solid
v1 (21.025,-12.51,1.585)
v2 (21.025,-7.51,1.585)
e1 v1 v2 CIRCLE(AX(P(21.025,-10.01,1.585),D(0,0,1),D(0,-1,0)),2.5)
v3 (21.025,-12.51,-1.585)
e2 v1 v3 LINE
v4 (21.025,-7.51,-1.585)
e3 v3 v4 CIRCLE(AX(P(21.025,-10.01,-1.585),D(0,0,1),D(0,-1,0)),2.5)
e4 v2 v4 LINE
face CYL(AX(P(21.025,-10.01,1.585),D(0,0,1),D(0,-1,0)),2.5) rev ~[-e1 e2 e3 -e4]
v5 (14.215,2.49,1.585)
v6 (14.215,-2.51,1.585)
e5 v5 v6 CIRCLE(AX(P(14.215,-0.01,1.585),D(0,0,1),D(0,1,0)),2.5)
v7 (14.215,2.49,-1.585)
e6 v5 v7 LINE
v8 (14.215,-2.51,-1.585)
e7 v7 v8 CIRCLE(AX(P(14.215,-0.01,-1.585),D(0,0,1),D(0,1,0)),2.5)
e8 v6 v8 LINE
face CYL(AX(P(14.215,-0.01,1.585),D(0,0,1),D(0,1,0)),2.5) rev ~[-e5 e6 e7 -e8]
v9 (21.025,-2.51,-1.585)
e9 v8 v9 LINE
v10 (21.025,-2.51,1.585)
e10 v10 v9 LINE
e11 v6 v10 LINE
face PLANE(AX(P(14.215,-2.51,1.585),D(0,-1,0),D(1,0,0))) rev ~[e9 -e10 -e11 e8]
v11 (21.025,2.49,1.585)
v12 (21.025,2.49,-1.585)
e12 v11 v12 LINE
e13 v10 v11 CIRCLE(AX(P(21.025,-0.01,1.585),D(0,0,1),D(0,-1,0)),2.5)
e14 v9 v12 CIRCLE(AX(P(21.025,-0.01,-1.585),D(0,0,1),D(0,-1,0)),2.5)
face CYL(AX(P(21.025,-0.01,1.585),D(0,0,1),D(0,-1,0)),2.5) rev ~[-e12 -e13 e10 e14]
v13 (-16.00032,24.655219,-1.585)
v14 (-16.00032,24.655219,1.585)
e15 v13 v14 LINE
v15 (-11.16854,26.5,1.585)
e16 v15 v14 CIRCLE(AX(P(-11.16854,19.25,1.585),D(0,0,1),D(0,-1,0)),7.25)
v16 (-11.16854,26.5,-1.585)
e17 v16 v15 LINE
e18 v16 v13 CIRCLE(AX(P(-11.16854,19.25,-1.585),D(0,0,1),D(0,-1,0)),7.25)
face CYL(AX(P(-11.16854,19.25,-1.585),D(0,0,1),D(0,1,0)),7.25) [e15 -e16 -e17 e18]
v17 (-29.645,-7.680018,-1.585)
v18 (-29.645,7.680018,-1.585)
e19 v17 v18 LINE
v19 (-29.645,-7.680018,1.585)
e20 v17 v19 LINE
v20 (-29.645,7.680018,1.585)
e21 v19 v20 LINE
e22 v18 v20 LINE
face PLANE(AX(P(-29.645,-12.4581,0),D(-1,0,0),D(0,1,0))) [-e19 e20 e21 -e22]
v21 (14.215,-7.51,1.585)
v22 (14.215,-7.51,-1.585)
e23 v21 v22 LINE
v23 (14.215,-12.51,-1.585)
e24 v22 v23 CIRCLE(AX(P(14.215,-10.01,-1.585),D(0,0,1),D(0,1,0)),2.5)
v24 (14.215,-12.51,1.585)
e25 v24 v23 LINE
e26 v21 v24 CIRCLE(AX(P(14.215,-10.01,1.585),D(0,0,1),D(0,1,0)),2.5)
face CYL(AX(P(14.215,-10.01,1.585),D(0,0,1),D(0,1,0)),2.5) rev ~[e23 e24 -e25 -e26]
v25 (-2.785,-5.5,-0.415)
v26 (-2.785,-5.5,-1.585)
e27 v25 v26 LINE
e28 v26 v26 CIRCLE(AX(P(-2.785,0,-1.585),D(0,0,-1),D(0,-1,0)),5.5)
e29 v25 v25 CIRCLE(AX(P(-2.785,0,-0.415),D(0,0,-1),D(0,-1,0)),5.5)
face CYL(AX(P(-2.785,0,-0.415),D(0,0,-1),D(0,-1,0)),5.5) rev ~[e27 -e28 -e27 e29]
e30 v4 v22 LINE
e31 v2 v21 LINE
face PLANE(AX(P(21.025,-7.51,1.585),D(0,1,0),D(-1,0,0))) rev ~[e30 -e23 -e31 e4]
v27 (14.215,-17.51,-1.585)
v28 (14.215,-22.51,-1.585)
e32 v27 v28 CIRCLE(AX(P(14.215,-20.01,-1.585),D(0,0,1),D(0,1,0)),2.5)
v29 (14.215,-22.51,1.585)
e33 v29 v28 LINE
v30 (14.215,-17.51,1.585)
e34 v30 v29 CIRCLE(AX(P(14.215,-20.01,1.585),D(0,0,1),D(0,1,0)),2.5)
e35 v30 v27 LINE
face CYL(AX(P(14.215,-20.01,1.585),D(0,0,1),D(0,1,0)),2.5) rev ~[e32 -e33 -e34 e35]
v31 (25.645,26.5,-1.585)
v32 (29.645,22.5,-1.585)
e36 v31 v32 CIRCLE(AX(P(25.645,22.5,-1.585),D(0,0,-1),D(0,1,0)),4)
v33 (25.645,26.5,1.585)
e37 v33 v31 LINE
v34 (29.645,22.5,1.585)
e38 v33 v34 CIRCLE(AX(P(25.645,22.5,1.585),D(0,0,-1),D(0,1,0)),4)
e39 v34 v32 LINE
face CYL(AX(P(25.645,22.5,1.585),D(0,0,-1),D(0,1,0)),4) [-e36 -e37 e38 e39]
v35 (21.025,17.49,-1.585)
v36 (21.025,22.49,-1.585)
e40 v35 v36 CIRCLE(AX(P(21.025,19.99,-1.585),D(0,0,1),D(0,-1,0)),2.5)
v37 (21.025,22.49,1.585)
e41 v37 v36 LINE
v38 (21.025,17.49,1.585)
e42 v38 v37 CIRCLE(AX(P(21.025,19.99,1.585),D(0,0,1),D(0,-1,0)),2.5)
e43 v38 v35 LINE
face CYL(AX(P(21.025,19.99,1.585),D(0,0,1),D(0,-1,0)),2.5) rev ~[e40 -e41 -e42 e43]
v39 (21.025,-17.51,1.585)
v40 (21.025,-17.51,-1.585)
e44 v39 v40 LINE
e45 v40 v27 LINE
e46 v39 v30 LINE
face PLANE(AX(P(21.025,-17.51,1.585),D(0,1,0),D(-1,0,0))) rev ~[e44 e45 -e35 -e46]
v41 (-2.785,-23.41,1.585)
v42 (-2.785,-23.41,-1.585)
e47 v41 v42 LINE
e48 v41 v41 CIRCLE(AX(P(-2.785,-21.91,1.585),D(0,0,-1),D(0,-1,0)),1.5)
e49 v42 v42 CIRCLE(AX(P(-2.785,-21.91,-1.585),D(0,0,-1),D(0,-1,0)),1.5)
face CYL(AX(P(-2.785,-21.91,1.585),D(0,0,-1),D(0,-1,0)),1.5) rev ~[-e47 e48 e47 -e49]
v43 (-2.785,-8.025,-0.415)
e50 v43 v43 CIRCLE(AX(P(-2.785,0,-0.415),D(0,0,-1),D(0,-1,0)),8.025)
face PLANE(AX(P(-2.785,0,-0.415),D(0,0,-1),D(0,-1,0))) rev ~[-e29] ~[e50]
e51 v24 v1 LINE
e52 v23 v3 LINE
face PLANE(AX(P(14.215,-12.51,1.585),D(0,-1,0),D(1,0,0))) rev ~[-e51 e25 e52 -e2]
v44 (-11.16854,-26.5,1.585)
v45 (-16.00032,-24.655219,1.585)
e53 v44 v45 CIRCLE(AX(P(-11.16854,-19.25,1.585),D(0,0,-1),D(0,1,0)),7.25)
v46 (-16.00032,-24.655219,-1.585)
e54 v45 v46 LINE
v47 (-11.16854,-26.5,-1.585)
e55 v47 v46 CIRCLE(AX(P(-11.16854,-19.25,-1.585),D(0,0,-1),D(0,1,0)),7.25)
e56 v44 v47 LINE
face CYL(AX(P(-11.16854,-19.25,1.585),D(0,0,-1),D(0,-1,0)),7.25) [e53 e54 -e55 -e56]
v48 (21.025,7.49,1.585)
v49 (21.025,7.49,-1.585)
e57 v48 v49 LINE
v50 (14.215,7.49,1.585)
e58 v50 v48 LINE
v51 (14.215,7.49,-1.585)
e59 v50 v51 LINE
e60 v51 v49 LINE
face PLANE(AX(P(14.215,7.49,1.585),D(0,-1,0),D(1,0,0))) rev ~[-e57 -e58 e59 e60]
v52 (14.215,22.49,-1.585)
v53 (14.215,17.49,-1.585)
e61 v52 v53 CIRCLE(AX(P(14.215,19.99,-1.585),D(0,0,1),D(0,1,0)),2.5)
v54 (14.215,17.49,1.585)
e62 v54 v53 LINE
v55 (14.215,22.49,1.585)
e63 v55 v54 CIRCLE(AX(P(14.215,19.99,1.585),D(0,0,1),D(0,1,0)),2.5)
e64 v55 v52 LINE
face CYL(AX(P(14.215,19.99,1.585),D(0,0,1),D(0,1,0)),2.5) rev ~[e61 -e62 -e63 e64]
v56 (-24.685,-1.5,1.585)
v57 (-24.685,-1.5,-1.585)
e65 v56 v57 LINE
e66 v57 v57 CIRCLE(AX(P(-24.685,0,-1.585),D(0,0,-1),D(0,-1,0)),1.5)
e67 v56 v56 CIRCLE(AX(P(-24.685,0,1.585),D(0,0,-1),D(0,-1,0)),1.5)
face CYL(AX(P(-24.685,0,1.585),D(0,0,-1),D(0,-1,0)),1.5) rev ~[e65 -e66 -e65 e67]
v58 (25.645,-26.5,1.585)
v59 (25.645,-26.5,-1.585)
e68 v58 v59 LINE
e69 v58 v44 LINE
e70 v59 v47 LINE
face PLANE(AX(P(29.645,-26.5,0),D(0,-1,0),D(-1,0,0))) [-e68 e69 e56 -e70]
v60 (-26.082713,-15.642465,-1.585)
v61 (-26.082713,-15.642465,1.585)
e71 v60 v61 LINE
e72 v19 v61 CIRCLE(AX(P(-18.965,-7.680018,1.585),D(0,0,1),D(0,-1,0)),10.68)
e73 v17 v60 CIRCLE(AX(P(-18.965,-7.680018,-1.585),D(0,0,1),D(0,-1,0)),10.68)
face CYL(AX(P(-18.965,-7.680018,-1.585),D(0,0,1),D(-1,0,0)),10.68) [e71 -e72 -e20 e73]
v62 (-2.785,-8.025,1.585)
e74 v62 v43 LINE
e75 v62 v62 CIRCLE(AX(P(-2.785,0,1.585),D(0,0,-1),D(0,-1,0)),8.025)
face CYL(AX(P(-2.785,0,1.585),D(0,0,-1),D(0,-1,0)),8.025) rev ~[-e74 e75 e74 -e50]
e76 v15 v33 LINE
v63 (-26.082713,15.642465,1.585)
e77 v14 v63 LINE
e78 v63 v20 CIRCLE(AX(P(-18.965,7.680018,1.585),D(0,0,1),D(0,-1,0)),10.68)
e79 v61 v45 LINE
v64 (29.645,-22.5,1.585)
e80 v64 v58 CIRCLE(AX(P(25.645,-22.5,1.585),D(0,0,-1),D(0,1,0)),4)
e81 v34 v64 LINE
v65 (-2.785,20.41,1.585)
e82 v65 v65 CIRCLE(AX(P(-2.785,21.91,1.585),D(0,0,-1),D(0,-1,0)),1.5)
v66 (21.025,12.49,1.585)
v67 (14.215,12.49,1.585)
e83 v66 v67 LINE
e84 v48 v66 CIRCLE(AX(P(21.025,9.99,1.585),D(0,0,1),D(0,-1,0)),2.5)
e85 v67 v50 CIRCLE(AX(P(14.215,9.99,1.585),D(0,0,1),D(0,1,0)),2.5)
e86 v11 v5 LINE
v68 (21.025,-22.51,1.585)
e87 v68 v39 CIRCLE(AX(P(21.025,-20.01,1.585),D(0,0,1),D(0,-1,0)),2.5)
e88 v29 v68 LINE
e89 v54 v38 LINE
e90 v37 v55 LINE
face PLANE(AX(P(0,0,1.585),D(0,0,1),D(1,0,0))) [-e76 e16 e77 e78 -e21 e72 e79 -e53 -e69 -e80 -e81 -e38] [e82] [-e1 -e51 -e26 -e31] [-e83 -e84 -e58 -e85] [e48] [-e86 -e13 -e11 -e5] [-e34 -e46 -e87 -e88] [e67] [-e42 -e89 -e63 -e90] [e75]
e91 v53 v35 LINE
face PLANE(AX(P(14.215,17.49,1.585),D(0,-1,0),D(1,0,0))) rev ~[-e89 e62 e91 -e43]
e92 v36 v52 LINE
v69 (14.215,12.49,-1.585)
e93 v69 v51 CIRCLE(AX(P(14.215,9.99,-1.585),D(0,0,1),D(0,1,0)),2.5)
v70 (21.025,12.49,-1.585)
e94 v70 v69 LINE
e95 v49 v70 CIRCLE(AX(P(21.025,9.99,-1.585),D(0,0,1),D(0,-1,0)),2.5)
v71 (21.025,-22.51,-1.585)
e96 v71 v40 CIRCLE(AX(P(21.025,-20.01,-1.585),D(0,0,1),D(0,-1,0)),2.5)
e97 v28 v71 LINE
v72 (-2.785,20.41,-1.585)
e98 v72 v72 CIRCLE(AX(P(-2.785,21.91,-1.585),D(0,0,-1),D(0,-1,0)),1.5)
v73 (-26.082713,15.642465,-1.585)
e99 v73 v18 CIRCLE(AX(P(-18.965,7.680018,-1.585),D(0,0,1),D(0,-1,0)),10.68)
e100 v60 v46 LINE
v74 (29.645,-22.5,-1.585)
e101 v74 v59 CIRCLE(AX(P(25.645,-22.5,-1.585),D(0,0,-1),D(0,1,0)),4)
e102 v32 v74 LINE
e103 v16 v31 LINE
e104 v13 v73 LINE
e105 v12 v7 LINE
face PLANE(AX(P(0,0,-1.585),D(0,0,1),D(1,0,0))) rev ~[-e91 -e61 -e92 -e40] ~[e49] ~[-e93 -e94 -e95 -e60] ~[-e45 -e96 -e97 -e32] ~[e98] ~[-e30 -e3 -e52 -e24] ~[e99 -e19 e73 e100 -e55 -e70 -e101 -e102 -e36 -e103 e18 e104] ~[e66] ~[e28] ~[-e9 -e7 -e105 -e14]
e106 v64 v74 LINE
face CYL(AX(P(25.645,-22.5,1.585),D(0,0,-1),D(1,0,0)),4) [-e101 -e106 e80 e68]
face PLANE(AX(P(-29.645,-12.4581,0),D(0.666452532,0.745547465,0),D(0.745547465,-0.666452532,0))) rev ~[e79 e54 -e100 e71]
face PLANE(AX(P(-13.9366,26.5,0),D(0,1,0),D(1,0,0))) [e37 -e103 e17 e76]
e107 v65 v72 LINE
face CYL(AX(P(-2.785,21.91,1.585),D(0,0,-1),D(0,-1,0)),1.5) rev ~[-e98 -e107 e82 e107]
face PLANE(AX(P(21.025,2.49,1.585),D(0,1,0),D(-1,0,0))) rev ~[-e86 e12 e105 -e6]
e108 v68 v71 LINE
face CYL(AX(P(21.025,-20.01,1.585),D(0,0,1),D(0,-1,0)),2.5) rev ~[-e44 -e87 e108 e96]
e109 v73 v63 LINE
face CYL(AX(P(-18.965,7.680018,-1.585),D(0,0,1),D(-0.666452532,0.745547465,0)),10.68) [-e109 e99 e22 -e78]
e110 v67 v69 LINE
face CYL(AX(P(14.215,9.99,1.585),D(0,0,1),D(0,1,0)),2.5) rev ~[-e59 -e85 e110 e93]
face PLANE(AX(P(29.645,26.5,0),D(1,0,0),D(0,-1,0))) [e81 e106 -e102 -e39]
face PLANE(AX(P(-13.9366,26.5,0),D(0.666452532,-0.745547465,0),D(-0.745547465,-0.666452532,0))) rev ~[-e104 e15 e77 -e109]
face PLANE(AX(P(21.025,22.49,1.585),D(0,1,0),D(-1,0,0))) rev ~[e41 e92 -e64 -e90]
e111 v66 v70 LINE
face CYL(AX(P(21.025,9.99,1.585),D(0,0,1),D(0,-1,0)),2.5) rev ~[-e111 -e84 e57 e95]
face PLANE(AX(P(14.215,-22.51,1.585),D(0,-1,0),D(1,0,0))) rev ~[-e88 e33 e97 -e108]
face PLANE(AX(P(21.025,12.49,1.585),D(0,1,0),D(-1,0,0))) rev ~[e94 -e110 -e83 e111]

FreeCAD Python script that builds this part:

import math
import FreeCAD as App
import Part
import Sketcher


def edges_at(feature, points):
    """Names of the edges that pass closest to the given points."""
    edges = feature.Shape.Edges
    near = lambda p: min(range(len(edges)), key=lambda i: edges[i].distToShape(Part.Vertex(*p))[0])
    return sorted({f"Edge{near(p) + 1}" for p in points})

doc = App.newDocument("Part")
params = doc.addObject("Spreadsheet::Sheet", "Params")
for row, (alias, value) in enumerate([
    ("sketch1_height", "53 mm"),
    ("pad1_length", "3.17 mm"),
    ("sketch2_radius", "2.5 mm"),
    ("sketch2_width", "6.81 mm"),
    ("linearpattern_pitch", "10 mm"),
    ("sketch3_diameter", "11 mm"),
    ("hole_diameter", "11 mm"),
    ("hole_cbore_diameter", "16.05 mm"),
    ("hole_cbore_depth", "2 mm"),
    ("sketch4_diameter", "3 mm"),
    ("hole2_diameter", "3 mm"),
    ("fillet_radius", "7.25 mm"),
    ("fillet2_radius", "7.25 mm"),
    ("fillet3_radius", "10.68 mm"),
    ("fillet4_radius", "4 mm"),
], start=1):
    params.set(f"A{row}", alias)
    params.set(f"B{row}", "=" + value)
    params.setAlias(f"B{row}", alias)

body = doc.addObject("PartDesign::Body", "Body")

# Sketch on XY plane
sketch1 = doc.addObject("Sketcher::SketchObject", "Sketch")
body.addObject(sketch1)
sketch1.AttachmentSupport = (doc.XY_Plane, [""])
sketch1.MapMode = "FlatFace"
sketch1.addGeometry([
    Part.LineSegment(App.Vector(29.645, 26.5, 0), App.Vector(-13.9366, 26.5, 0)),  # 0
    Part.LineSegment(App.Vector(-13.9366, 26.5, 0), App.Vector(-29.645, 12.4581, 0)),  # 1
    Part.LineSegment(App.Vector(-29.645, 12.4581, 0), App.Vector(-29.645, -12.4581, 0)),  # 2
    Part.LineSegment(App.Vector(-29.645, -12.4581, 0), App.Vector(-13.9366, -26.5, 0)),  # 3
    Part.LineSegment(App.Vector(-13.9366, -26.5, 0), App.Vector(29.645, -26.5, 0)),  # 4
    Part.LineSegment(App.Vector(29.645, -26.5, 0), App.Vector(29.645, 26.5, 0)),  # 5
], False)
sketch1.addConstraint([
    Sketcher.Constraint("Coincident", 0, 2, 1, 1),
    Sketcher.Constraint("Coincident", 1, 2, 2, 1),
    Sketcher.Constraint("Coincident", 2, 2, 3, 1),
    Sketcher.Constraint("Coincident", 3, 2, 4, 1),
    Sketcher.Constraint("Coincident", 4, 2, 5, 1),
    Sketcher.Constraint("Coincident", 5, 2, 0, 1),
    Sketcher.Constraint("Horizontal", 0),
    Sketcher.Constraint("Vertical", 2),
    Sketcher.Constraint("Horizontal", 4),
    Sketcher.Constraint("Vertical", 5),
    Sketcher.Constraint("Symmetric", 0, 2, 3, 2, -1),
    Sketcher.Constraint("Equal", 1, 3),
    Sketcher.Constraint("DistanceY", 5, 1, 5, 2, 53.0),
    Sketcher.Constraint("DistanceX", 2, 2, 4, 2, 59.29),
    Sketcher.Constraint("DistanceX", 0, 2, 0, 1, 43.5816),
    Sketcher.Constraint("DistanceY", -1, 1, 1, 2, 12.458),
    Sketcher.Constraint("DistanceX", 1, 2, -1, 1, 29.645),
])
sketch1.setExpression("Constraints[12]", "Params.sketch1_height")
pad1 = doc.addObject("PartDesign::Pad", "Pad")
body.addObject(pad1)
pad1.Profile = sketch1
pad1.setExpression("Length", "Params.pad1_length")
pad1.Midplane = True

# Sketch on XY plane
sketch2 = doc.addObject("Sketcher::SketchObject", "Sketch001")
body.addObject(sketch2)
sketch2.AttachmentSupport = (doc.XY_Plane, [""])
sketch2.MapMode = "FlatFace"
sketch2.AttachmentOffset = App.Placement(App.Vector(0, 0, 1.585), App.Rotation())
sketch2.addGeometry([
    Part.LineSegment(App.Vector(14.215, -22.51, 0), App.Vector(21.025, -22.51, 0)),
    Part.ArcOfCircle(Part.Circle(App.Vector(21.025, -20.01, 0), App.Vector(0, 0, 1), 2.5), math.radians(-90), math.radians(90)),
    Part.LineSegment(App.Vector(21.025, -17.51, 0), App.Vector(14.215, -17.51, 0)),
    Part.ArcOfCircle(Part.Circle(App.Vector(14.215, -20.01, 0), App.Vector(0, 0, 1), 2.5), math.radians(90), math.radians(270)),
], False)
sketch2.addConstraint([
    Sketcher.Constraint("Tangent", 0, 2, 1, 1),
    Sketcher.Constraint("Tangent", 1, 2, 2, 1),
    Sketcher.Constraint("Tangent", 2, 2, 3, 1),
    Sketcher.Constraint("Tangent", 3, 2, 0, 1),
    Sketcher.Constraint("Horizontal", 0),
    Sketcher.Constraint("Horizontal", 2),
    Sketcher.Constraint("Radius", 1, 2.5),
    Sketcher.Constraint("DistanceX", 0, 1, 0, 2, 6.81),
    Sketcher.Constraint("DistanceY", 1, 3, -1, 1, 20.01),
    Sketcher.Constraint("DistanceX", -1, 1, 1, 3, 21.025),
])
sketch2.setExpression("Constraints[6]", "Params.sketch2_radius")
sketch2.setExpression("Constraints[7]", "Params.sketch2_width")
pocket1 = doc.addObject("PartDesign::Pocket", "Pocket")
body.addObject(pocket1)
pocket1.Profile = sketch2
pocket1.Type = "ThroughAll"
doc.recompute()

linearpattern = doc.addObject("PartDesign::LinearPattern", "LinearPattern")
body.addObject(linearpattern)
linearpattern.Originals = [pocket1]
linearpattern.Direction = (doc.Y_Axis, [""])
linearpattern.Mode = "offset"
linearpattern.setExpression("Offset", "Params.linearpattern_pitch")
linearpattern.Occurrences = 5
body.Tip = linearpattern

# Sketch on XY plane
sketch3 = doc.addObject("Sketcher::SketchObject", "Sketch002")
body.addObject(sketch3)
sketch3.AttachmentSupport = (doc.XY_Plane, [""])
sketch3.MapMode = "FlatFace"
sketch3.AttachmentOffset = App.Placement(App.Vector(0, 0, 1.585), App.Rotation())
sketch3.addGeometry(Part.Circle(App.Vector(-2.785, 0, 0), App.Vector(0, 0, 1), 5.5), False)
sketch3.addConstraint([
    Sketcher.Constraint("PointOnObject", 0, 3, -1),
    Sketcher.Constraint("Diameter", 0, 11.0),
    Sketcher.Constraint("DistanceX", 0, 3, -1, 1, 2.785),
])
sketch3.setExpression("Constraints[1]", "Params.sketch3_diameter")
doc.recompute()
hole = doc.addObject("PartDesign::Hole", "Hole")
body.addObject(hole)
hole.Profile = sketch3
hole.ThreadType = "None"
hole.setExpression("Diameter", "Params.hole_diameter")
hole.DepthType = "ThroughAll"
hole.HoleCutType = "Counterbore"
hole.setExpression("HoleCutDiameter", "Params.hole_cbore_diameter")
hole.setExpression("HoleCutDepth", "Params.hole_cbore_depth")

# Sketch on XY plane
sketch4 = doc.addObject("Sketcher::SketchObject", "Sketch003")
body.addObject(sketch4)
sketch4.AttachmentSupport = (doc.XY_Plane, [""])
sketch4.MapMode = "FlatFace"
sketch4.AttachmentOffset = App.Placement(App.Vector(0, 0, 1.585), App.Rotation())
sketch4.addGeometry([
    Part.Circle(App.Vector(-2.785, 21.91, 0), App.Vector(0, 0, 1), 1.5),
    Part.Circle(App.Vector(-2.785, -21.91, 0), App.Vector(0, 0, 1), 1.5),
    Part.Circle(App.Vector(-24.685, 0, 0), App.Vector(0, 0, 1), 1.5),
], False)
sketch4.addConstraint([
    Sketcher.Constraint("Equal", 0, 1),
    Sketcher.Constraint("Equal", 1, 2),
    Sketcher.Constraint("Symmetric", 0, 3, 1, 3, -1),
    Sketcher.Constraint("PointOnObject", 2, 3, -1),
    Sketcher.Constraint("Diameter", 0, 3.0),
    Sketcher.Constraint("DistanceX", 2, 3, 0, 3, 21.9),
    Sketcher.Constraint("DistanceY", -1, 1, 0, 3, 21.91),
    Sketcher.Constraint("DistanceX", 0, 3, -1, 1, 2.785),
])
sketch4.setExpression("Constraints[4]", "Params.sketch4_diameter")
doc.recompute()
hole2 = doc.addObject("PartDesign::Hole", "Hole001")
body.addObject(hole2)
hole2.Profile = sketch4
hole2.ThreadType = "None"
hole2.setExpression("Diameter", "Params.hole2_diameter")
hole2.DepthType = "ThroughAll"
doc.recompute()

fillet = doc.addObject("PartDesign::Fillet", "Fillet")
body.addObject(fillet)
fillet.Base = (hole2, edges_at(hole2, [(-13.937, -26.5, 0)]))
fillet.setExpression("Radius", "Params.fillet_radius")
doc.recompute()

fillet2 = doc.addObject("PartDesign::Fillet", "Fillet001")
body.addObject(fillet2)
fillet2.Base = (fillet, edges_at(fillet, [(-13.937, 26.5, 0)]))
fillet2.setExpression("Radius", "Params.fillet2_radius")
doc.recompute()

fillet3 = doc.addObject("PartDesign::Fillet", "Fillet002")
body.addObject(fillet3)
fillet3.Base = (fillet2, edges_at(fillet2, [(-29.645, 12.458, 0), (-29.645, -12.458, 0)]))
fillet3.setExpression("Radius", "Params.fillet3_radius")
doc.recompute()

fillet4 = doc.addObject("PartDesign::Fillet", "Fillet003")
body.addObject(fillet4)
fillet4.Base = (fillet3, edges_at(fillet3, [(29.645, -26.5, 0), (29.645, 26.5, 0)]))
fillet4.setExpression("Radius", "Params.fillet4_radius")

doc.recompute()
